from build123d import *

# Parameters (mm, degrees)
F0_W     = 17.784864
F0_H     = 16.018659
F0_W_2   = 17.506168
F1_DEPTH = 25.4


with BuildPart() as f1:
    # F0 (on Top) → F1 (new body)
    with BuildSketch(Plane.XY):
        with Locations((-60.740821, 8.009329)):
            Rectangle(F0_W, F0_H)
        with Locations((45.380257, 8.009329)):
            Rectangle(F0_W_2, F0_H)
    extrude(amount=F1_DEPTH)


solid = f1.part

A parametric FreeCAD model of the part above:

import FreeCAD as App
import Part
import Sketcher
from FreeCAD import Vector
Q = App.Units.Quantity


def add_polygon(sketch, points):
    """Adds a closed chain of lines whose ends are joined by coincident constraints."""
    first, n = sketch.GeometryCount, len(points)
    for a, b in zip(points, points[1:] + points[:1]):
        sketch.addGeometry(Part.LineSegment(App.Vector(*a, 0), App.Vector(*b, 0)), False)
    for i in range(n):
        sketch.addConstraint(Sketcher.Constraint("Coincident", first + i, 2, first + (i + 1) % n, 1))

doc = App.newDocument("Part")
body = doc.addObject("PartDesign::Body", "Body")
body.AllowCompound = True

sketch1 = body.newObject("Sketcher::SketchObject", "Sketch")
sketch1.AttachmentSupport = (doc.getObject("XY_Plane"), [""])
sketch1.MapMode = "FlatFace"
add_polygon(sketch1, [(-70, 16), (-70, 0), (-52, 0), (-52, 16)])
add_polygon(sketch1, [(37, 16), (37, 0), (54, 0), (54, 16)])
sketch1.addConstraint([
    Sketcher.Constraint("Vertical", 0),
    Sketcher.Constraint("Horizontal", 1),
    Sketcher.Constraint("Vertical", 2),
    Sketcher.Constraint("Horizontal", 3),
    Sketcher.Constraint("Vertical", 4),
    Sketcher.Constraint("Horizontal", 5),
    Sketcher.Constraint("Vertical", 6),
    Sketcher.Constraint("Horizontal", 7),
    Sketcher.Constraint("PointOnObject", 0, 2, -1),
    Sketcher.Constraint("PointOnObject", 4, 2, -1),
    Sketcher.Constraint("Horizontal", 3, 2, 6, 2),
    Sketcher.Constraint("DistanceX", 5, 1, 5, 2, 17.506168),
    Sketcher.Constraint("DistanceY", 0, 2, 0, 1, 16.018659),
    Sketcher.Constraint("DistanceX", 1, 1, 1, 2, 17.784864),
    Sketcher.Constraint("DistanceX", 1, 2, -1, 1, 51.848389),
    Sketcher.Constraint("DistanceX", -1, 1, 5, 2, 54.133341),
])
pad1 = body.newObject("PartDesign::Pad", "Pad")
pad1.Profile = sketch1
pad1.Length = Q("1 in")

doc.recompute()
